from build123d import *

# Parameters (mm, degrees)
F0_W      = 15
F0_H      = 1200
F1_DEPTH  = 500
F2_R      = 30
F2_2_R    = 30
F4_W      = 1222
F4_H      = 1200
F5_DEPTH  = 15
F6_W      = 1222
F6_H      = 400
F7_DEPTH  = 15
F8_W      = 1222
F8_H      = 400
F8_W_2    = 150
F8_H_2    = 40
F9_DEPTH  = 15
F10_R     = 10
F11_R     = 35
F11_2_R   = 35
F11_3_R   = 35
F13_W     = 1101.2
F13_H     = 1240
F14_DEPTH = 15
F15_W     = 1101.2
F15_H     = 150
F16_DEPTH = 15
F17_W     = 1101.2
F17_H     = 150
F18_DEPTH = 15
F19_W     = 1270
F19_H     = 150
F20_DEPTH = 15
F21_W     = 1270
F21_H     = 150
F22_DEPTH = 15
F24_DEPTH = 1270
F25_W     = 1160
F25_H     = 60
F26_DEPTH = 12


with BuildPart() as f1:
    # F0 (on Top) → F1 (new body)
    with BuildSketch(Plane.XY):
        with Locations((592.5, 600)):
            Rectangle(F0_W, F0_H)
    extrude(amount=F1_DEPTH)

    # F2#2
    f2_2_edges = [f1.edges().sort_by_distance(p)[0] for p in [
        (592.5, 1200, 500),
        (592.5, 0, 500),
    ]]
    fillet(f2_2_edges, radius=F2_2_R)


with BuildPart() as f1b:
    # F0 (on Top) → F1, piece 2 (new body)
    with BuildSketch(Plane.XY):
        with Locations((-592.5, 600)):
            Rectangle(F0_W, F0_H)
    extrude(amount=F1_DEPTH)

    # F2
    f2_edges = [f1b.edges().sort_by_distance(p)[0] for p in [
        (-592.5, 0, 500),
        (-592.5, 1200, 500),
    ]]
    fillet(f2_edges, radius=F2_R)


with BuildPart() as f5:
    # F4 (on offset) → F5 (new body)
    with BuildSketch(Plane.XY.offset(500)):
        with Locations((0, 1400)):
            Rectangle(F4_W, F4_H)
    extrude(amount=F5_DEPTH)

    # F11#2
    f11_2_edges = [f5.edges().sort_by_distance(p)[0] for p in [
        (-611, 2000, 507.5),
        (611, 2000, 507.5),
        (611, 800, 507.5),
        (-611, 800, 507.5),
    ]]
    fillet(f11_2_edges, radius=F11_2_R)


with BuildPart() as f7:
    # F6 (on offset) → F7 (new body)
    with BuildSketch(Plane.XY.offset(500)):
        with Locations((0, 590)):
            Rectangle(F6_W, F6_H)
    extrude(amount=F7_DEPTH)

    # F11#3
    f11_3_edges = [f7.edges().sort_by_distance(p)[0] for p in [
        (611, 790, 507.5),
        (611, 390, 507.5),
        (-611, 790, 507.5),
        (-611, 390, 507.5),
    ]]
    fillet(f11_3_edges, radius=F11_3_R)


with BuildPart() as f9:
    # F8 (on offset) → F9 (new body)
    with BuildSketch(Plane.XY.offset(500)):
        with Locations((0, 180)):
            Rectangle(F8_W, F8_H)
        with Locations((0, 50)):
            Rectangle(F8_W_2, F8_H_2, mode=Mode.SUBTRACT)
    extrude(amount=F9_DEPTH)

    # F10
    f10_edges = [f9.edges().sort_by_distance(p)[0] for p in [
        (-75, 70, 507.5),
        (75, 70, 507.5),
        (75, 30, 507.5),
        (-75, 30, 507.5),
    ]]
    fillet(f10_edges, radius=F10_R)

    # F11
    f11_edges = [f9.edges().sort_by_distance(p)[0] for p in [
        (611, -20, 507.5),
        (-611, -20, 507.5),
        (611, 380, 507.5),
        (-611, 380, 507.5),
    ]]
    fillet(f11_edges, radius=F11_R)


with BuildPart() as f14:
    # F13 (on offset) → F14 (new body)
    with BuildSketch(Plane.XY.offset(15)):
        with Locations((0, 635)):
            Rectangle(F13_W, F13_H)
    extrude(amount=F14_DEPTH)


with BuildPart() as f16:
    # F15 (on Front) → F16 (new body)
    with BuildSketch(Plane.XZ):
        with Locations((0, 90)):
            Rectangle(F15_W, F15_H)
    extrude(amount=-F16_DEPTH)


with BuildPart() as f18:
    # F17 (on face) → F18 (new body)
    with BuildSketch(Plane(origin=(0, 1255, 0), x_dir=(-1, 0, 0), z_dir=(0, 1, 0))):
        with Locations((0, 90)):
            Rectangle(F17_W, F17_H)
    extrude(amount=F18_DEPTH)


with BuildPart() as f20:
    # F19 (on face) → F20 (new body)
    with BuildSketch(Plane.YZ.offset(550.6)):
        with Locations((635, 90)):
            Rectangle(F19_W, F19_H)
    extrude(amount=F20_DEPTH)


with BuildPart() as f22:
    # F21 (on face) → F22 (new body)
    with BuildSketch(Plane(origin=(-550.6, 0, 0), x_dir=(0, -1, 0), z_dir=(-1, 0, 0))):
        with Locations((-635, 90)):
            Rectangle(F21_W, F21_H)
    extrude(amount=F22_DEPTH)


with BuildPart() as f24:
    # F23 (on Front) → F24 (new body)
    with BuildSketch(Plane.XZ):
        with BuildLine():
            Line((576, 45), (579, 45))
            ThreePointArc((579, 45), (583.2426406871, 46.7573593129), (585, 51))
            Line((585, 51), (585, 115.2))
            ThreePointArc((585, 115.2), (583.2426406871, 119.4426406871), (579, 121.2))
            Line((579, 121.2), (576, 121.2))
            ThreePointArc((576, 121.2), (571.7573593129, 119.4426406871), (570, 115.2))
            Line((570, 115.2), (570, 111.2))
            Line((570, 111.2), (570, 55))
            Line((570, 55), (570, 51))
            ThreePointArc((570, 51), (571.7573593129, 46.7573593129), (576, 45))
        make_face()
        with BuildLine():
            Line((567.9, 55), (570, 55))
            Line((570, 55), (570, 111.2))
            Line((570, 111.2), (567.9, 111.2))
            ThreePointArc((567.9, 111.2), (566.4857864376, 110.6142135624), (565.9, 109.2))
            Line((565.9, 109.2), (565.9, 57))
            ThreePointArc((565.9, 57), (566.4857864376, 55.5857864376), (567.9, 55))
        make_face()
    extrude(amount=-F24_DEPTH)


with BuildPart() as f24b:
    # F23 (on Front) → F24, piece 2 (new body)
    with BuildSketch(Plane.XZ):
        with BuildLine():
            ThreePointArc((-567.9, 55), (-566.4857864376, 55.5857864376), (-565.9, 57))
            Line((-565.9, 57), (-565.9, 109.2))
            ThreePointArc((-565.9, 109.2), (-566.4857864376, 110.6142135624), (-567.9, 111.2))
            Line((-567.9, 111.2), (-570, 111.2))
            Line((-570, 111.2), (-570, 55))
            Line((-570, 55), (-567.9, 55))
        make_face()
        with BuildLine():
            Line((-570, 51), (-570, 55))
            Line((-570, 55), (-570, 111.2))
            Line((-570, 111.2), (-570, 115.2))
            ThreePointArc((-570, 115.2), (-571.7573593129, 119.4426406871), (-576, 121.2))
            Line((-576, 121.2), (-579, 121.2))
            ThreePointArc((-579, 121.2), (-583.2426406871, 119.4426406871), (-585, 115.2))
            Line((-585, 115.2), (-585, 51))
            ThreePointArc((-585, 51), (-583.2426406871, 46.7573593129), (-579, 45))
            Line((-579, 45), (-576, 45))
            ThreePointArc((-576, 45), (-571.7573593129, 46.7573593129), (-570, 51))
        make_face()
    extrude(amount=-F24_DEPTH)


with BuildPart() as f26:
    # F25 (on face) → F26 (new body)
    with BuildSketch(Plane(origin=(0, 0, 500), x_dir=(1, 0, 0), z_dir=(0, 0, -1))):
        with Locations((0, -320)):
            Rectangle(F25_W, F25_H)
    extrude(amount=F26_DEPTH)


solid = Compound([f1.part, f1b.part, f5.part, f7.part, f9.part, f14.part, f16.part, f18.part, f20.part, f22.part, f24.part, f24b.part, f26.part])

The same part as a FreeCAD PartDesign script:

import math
import FreeCAD as App
import Part
import Sketcher
Q = App.Units.Quantity


def edges_at(feature, points):
    """Names of the edges that pass closest to the given points."""
    edges = feature.Shape.Edges
    near = lambda p: min(range(len(edges)), key=lambda i: edges[i].distToShape(Part.Vertex(*p))[0])
    return sorted({f"Edge{near(p) + 1}" for p in points})


def add_polygon(sketch, points):
    """Adds a closed chain of lines whose ends are joined by coincident constraints."""
    first, n = sketch.GeometryCount, len(points)
    for a, b in zip(points, points[1:] + points[:1]):
        sketch.addGeometry(Part.LineSegment(App.Vector(*a, 0), App.Vector(*b, 0)), False)
    for i in range(n):
        sketch.addConstraint(Sketcher.Constraint("Coincident", first + i, 2, first + (i + 1) % n, 1))

doc = App.newDocument("Part")
body = doc.addObject("PartDesign::Body", "Body")

sketch1 = body.newObject("Sketcher::SketchObject", "Sketch")
sketch1.AttachmentSupport = (doc.getObject("XY_Plane"), [""])
sketch1.MapMode = "FlatFace"
add_polygon(sketch1, [(585, 1200), (585, 0), (600, 0), (600, 1200)])
sketch1.addConstraint([
    Sketcher.Constraint("Vertical", 0),
    Sketcher.Constraint("Horizontal", 1),
    Sketcher.Constraint("Vertical", 2),
    Sketcher.Constraint("Horizontal", 3),
    Sketcher.Constraint("PointOnObject", 0, 2, -1),
    Sketcher.Constraint("DistanceX", 1, 1, 1, 2, Q("15 mm")),
    Sketcher.Constraint("DistanceY", 0, 2, 0, 1, Q("1200 mm")),
    Sketcher.Constraint("DistanceX", -1, 1, 0, 2, Q("585 mm")),
])
pad1 = body.newObject("PartDesign::Pad", "Pad")
pad1.Profile = sketch1
pad1.Length = 500
doc.recompute()

fillet = body.newObject("PartDesign::Fillet", "Fillet")
fillet.Base = (pad1, edges_at(pad1, [(592.5, 1200, 500), (592.5, 0, 500)]))
fillet.Radius = 30
body2 = doc.addObject("PartDesign::Body", "Body001")

sketch2 = body2.newObject("Sketcher::SketchObject", "Sketch001")
sketch2.AttachmentSupport = (doc.getObject("XY_Plane001"), [""])
sketch2.MapMode = "FlatFace"
add_polygon(sketch2, [(-600, 1200), (-600, 0), (-585, 0), (-585, 1200)])
sketch2.addConstraint([
    Sketcher.Constraint("Vertical", 0),
    Sketcher.Constraint("Horizontal", 1),
    Sketcher.Constraint("Vertical", 2),
    Sketcher.Constraint("Horizontal", 3),
    Sketcher.Constraint("PointOnObject", 0, 2, -1),
    Sketcher.Constraint("DistanceX", 1, 1, 1, 2, Q("15 mm")),
    Sketcher.Constraint("DistanceY", 0, 2, 0, 1, Q("1200 mm")),
    Sketcher.Constraint("DistanceX", 0, 2, -1, 1, Q("600 mm")),
])
pad2 = body2.newObject("PartDesign::Pad", "Pad001")
pad2.Profile = sketch2
pad2.Length = 500
doc.recompute()

fillet2 = body2.newObject("PartDesign::Fillet", "Fillet001")
fillet2.Base = (pad2, edges_at(pad2, [(-592.5, 0, 500), (-592.5, 1200, 500)]))
fillet2.Radius = 30
body3 = doc.addObject("PartDesign::Body", "Body002")

sketch3 = body3.newObject("Sketcher::SketchObject", "Sketch002")
sketch3.AttachmentSupport = (doc.getObject("XY_Plane002"), [""])
sketch3.MapMode = "FlatFace"
sketch3.AttachmentOffset = App.Placement(App.Vector(0, 0, 500), App.Rotation())
add_polygon(sketch3, [(-611, 2000), (-611, 800), (611, 800), (611, 2000)])
sketch3.addConstraint([
    Sketcher.Constraint("Vertical", 0),
    Sketcher.Constraint("Horizontal", 1),
    Sketcher.Constraint("Vertical", 2),
    Sketcher.Constraint("Horizontal", 3),
    Sketcher.Constraint("DistanceX", 1, 1, 1, 2, Q("1222 mm")),
    Sketcher.Constraint("DistanceY", 0, 2, 0, 1, Q("1200 mm")),
    Sketcher.Constraint("DistanceX", 0, 2, -1, 1, Q("611 mm")),
    Sketcher.Constraint("DistanceY", -1, 1, 0, 2, Q("800 mm")),
])
pad3 = body3.newObject("PartDesign::Pad", "Pad002")
pad3.Profile = sketch3
pad3.Length = 15
doc.recompute()

fillet3 = body3.newObject("PartDesign::Fillet", "Fillet002")
fillet3.Base = (pad3, edges_at(pad3, [
    (-611, 2000, 507.5),
    (611, 2000, 507.5),
    (611, 800, 507.5),
    (-611, 800, 507.5),
]))
fillet3.Radius = 35
body4 = doc.addObject("PartDesign::Body", "Body003")

sketch4 = body4.newObject("Sketcher::SketchObject", "Sketch003")
sketch4.AttachmentSupport = (doc.getObject("XY_Plane003"), [""])
sketch4.MapMode = "FlatFace"
sketch4.AttachmentOffset = App.Placement(App.Vector(0, 0, 500), App.Rotation())
add_polygon(sketch4, [(-611, 790), (-611, 390), (611, 390), (611, 790)])
sketch4.addConstraint([
    Sketcher.Constraint("Vertical", 0),
    Sketcher.Constraint("Horizontal", 1),
    Sketcher.Constraint("Vertical", 2),
    Sketcher.Constraint("Horizontal", 3),
    Sketcher.Constraint("DistanceX", 1, 1, 1, 2, Q("1222 mm")),
    Sketcher.Constraint("DistanceY", 0, 2, 0, 1, Q("400 mm")),
    Sketcher.Constraint("DistanceX", 0, 2, -1, 1, Q("611 mm")),
    Sketcher.Constraint("DistanceY", -1, 1, 0, 2, Q("390 mm")),
])
pad4 = body4.newObject("PartDesign::Pad", "Pad003")
pad4.Profile = sketch4
pad4.Length = 15
doc.recompute()

fillet4 = body4.newObject("PartDesign::Fillet", "Fillet003")
fillet4.Base = (pad4, edges_at(pad4, [
    (611, 790, 507.5),
    (611, 390, 507.5),
    (-611, 790, 507.5),
    (-611, 390, 507.5),
]))
fillet4.Radius = 35
body5 = doc.addObject("PartDesign::Body", "Body004")

sketch5 = body5.newObject("Sketcher::SketchObject", "Sketch004")
sketch5.AttachmentSupport = (doc.getObject("XY_Plane004"), [""])
sketch5.MapMode = "FlatFace"
sketch5.AttachmentOffset = App.Placement(App.Vector(0, 0, 500), App.Rotation())
add_polygon(sketch5, [(-611, 380), (-611, -20), (611, -20), (611, 380)])
add_polygon(sketch5, [(75, 30), (-75, 30), (-75, 70), (75, 70)])
sketch5.addConstraint([
    Sketcher.Constraint("Vertical", 0),
    Sketcher.Constraint("Horizontal", 1),
    Sketcher.Constraint("Vertical", 2),
    Sketcher.Constraint("Horizontal", 3),
    Sketcher.Constraint("Horizontal", 4),
    Sketcher.Constraint("Vertical", 5),
    Sketcher.Constraint("Horizontal", 6),
    Sketcher.Constraint("Vertical", 7),
    Sketcher.Constraint("DistanceX", 1, 1, 1, 2, Q("1222 mm")),
    Sketcher.Constraint("DistanceX", 4, 2, 4, 1, Q("150 mm")),
    Sketcher.Constraint("DistanceY", 0, 2, 0, 1, Q("400 mm")),
    Sketcher.Constraint("DistanceY", 5, 1, 5, 2, Q("40 mm")),
    Sketcher.Constraint("DistanceX", 0, 2, -1, 1, Q("611 mm")),
    Sketcher.Constraint("DistanceY", 0, 2, -1, 1, Q("20 mm")),
    Sketcher.Constraint("DistanceX", 4, 2, -1, 1, Q("75 mm")),
    Sketcher.Constraint("DistanceY", -1, 1, 4, 2, Q("30 mm")),
])
pad5 = body5.newObject("PartDesign::Pad", "Pad004")
pad5.Profile = sketch5
pad5.Length = 15
doc.recompute()

fillet5 = body5.newObject("PartDesign::Fillet", "Fillet004")
fillet5.Base = (pad5, edges_at(pad5, [
    (-75, 70, 507.5),
    (75, 70, 507.5),
    (75, 30, 507.5),
    (-75, 30, 507.5),
]))
fillet5.Radius = 10
doc.recompute()

fillet6 = body5.newObject("PartDesign::Fillet", "Fillet005")
fillet6.Base = (fillet5, edges_at(fillet5, [
    (611, -20, 507.5),
    (-611, -20, 507.5),
    (611, 380, 507.5),
    (-611, 380, 507.5),
]))
fillet6.Radius = 35
body6 = doc.addObject("PartDesign::Body", "Body005")

sketch6 = body6.newObject("Sketcher::SketchObject", "Sketch005")
sketch6.AttachmentSupport = (doc.getObject("XY_Plane005"), [""])
sketch6.MapMode = "FlatFace"
sketch6.AttachmentOffset = App.Placement(App.Vector(0, 0, 15), App.Rotation())
add_polygon(sketch6, [(-551, 1255), (-551, 15), (551, 15), (551, 1255)])
sketch6.addConstraint([
    Sketcher.Constraint("Vertical", 0),
    Sketcher.Constraint("Horizontal", 1),
    Sketcher.Constraint("Vertical", 2),
    Sketcher.Constraint("Horizontal", 3),
    Sketcher.Constraint("DistanceY", 0, 2, 0, 1, Q("1240 mm")),
    Sketcher.Constraint("DistanceX", 1, 1, 1, 2, Q("1101.2 mm")),
    Sketcher.Constraint("DistanceY", -1, 1, 0, 2, Q("15 mm")),
    Sketcher.Constraint("DistanceX", 0, 2, -1, 1, Q("550.6 mm")),
])
pad6 = body6.newObject("PartDesign::Pad", "Pad005")
pad6.Profile = sketch6
pad6.Length = 15
body7 = doc.addObject("PartDesign::Body", "Body006")

sketch7 = body7.newObject("Sketcher::SketchObject", "Sketch006")
sketch7.AttachmentSupport = (doc.getObject("XZ_Plane006"), [""])
sketch7.MapMode = "FlatFace"
add_polygon(sketch7, [(-551, 165), (-551, 15), (551, 15), (551, 165)])
sketch7.addConstraint([
    Sketcher.Constraint("Vertical", 0),
    Sketcher.Constraint("Horizontal", 1),
    Sketcher.Constraint("Vertical", 2),
    Sketcher.Constraint("Horizontal", 3),
    Sketcher.Constraint("DistanceY", 0, 2, 0, 1, Q("150 mm")),
    Sketcher.Constraint("DistanceX", 1, 1, 1, 2, Q("1101.2 mm")),
    Sketcher.Constraint("DistanceY", -1, 1, 0, 2, Q("15 mm")),
    Sketcher.Constraint("DistanceX", 0, 2, -1, 1, Q("550.6 mm")),
])
pad7 = body7.newObject("PartDesign::Pad", "Pad006")
pad7.Profile = sketch7
pad7.Length = 15
pad7.Reversed = True
body8 = doc.addObject("PartDesign::Body", "Body007")

sketch8 = body8.newObject("Sketcher::SketchObject", "Sketch007")
sketch8.AttachmentSupport = (doc.getObject("XZ_Plane007"), [""])
sketch8.MapMode = "FlatFace"
sketch8.AttachmentOffset = App.Placement(App.Vector(0, 0, -1255), App.Rotation())
add_polygon(sketch8, [(551, 165), (551, 15), (-551, 15), (-551, 165)])
sketch8.addConstraint([
    Sketcher.Constraint("Vertical", 0),
    Sketcher.Constraint("Horizontal", 1),
    Sketcher.Constraint("Vertical", 2),
    Sketcher.Constraint("Horizontal", 3),
    Sketcher.Constraint("DistanceY", 0, 2, 0, 1, Q("150 mm")),
    Sketcher.Constraint("DistanceX", 1, 2, 1, 1, Q("1101.2 mm")),
    Sketcher.Constraint("DistanceY", -1, 1, 0, 2, Q("15 mm")),
    Sketcher.Constraint("DistanceX", -1, 1, 0, 2, Q("550.6 mm")),
])
pad8 = body8.newObject("PartDesign::Pad", "Pad007")
pad8.Profile = sketch8
pad8.Length = 15
pad8.Reversed = True
body9 = doc.addObject("PartDesign::Body", "Body008")

sketch9 = body9.newObject("Sketcher::SketchObject", "Sketch008")
sketch9.AttachmentSupport = (doc.getObject("YZ_Plane008"), [""])
sketch9.MapMode = "FlatFace"
sketch9.AttachmentOffset = App.Placement(App.Vector(0, 0, 550.6), App.Rotation())
add_polygon(sketch9, [(0, 165), (0, 15), (1270, 15), (1270, 165)])
sketch9.addConstraint([
    Sketcher.Constraint("Vertical", 0),
    Sketcher.Constraint("Horizontal", 1),
    Sketcher.Constraint("Vertical", 2),
    Sketcher.Constraint("Horizontal", 3),
    Sketcher.Constraint("PointOnObject", 0, 2, -2),
    Sketcher.Constraint("DistanceX", 1, 1, 1, 2, Q("1270 mm")),
    Sketcher.Constraint("DistanceY", 0, 2, 0, 1, Q("150 mm")),
    Sketcher.Constraint("DistanceY", -1, 1, 0, 2, Q("15 mm")),
])
pad9 = body9.newObject("PartDesign::Pad", "Pad008")
pad9.Profile = sketch9
pad9.Length = 15
body10 = doc.addObject("PartDesign::Body", "Body009")

sketch10 = body10.newObject("Sketcher::SketchObject", "Sketch009")
sketch10.AttachmentSupport = (doc.getObject("YZ_Plane009"), [""])
sketch10.MapMode = "FlatFace"
sketch10.AttachmentOffset = App.Placement(App.Vector(0, 0, -550.6), App.Rotation())
add_polygon(sketch10, [(1270, 165), (1270, 15), (0, 15), (0, 165)])
sketch10.addConstraint([
    Sketcher.Constraint("Vertical", 0),
    Sketcher.Constraint("Horizontal", 1),
    Sketcher.Constraint("Vertical", 2),
    Sketcher.Constraint("Horizontal", 3),
    Sketcher.Constraint("PointOnObject", 1, 2, -2),
    Sketcher.Constraint("DistanceX", 1, 2, 1, 1, Q("1270 mm")),
    Sketcher.Constraint("DistanceY", 0, 2, 0, 1, Q("150 mm")),
    Sketcher.Constraint("DistanceY", -1, 1, 0, 2, Q("15 mm")),
])
pad10 = body10.newObject("PartDesign::Pad", "Pad009")
pad10.Profile = sketch10
pad10.Length = 15
pad10.Reversed = True
body11 = doc.addObject("PartDesign::Body", "Body010")

sketch11 = body11.newObject("Sketcher::SketchObject", "Sketch010")
sketch11.AttachmentSupport = (doc.getObject("XZ_Plane010"), [""])
sketch11.MapMode = "FlatFace"
sketch11.addGeometry([
    Part.LineSegment(App.Vector(576, 45, 0), App.Vector(579, 45, 0)),
    Part.ArcOfCircle(Part.Circle(App.Vector(579, 51, 0), App.Vector(0, 0, 1), 6), math.radians(-90), math.radians(0)),
    Part.LineSegment(App.Vector(585, 51, 0), App.Vector(585, 115.2, 0)),
    Part.ArcOfCircle(Part.Circle(App.Vector(579, 115.2, 0), App.Vector(0, 0, 1), 6), math.radians(0), math.radians(90)),
    Part.LineSegment(App.Vector(579, 121.2, 0), App.Vector(576, 121.2, 0)),
    Part.ArcOfCircle(Part.Circle(App.Vector(576, 115.2, 0), App.Vector(0, 0, 1), 6), math.radians(90), math.radians(180)),
    Part.LineSegment(App.Vector(570, 115.2, 0), App.Vector(570, 111.2, 0)),
    Part.LineSegment(App.Vector(570, 111.2, 0), App.Vector(567.9, 111.2, 0)),
    Part.ArcOfCircle(Part.Circle(App.Vector(567.9, 109.2, 0), App.Vector(0, 0, 1), 2), math.radians(90), math.radians(180)),
    Part.LineSegment(App.Vector(565.9, 109.2, 0), App.Vector(565.9, 57, 0)),
    Part.ArcOfCircle(Part.Circle(App.Vector(567.9, 57, 0), App.Vector(0, 0, 1), 2), math.radians(180), math.radians(270)),
    Part.LineSegment(App.Vector(567.9, 55, 0), App.Vector(570, 55, 0)),
    Part.LineSegment(App.Vector(570, 55, 0), App.Vector(570, 51, 0)),
    Part.ArcOfCircle(Part.Circle(App.Vector(576, 51, 0), App.Vector(0, 0, 1), 6), math.radians(180), math.radians(270)),
], False)
sketch11.addConstraint([
    Sketcher.Constraint("Tangent", 0, 2, 1, 1),
    Sketcher.Constraint("Tangent", 1, 2, 2, 1),
    Sketcher.Constraint("Tangent", 2, 2, 3, 1),
    Sketcher.Constraint("Tangent", 3, 2, 4, 1),
    Sketcher.Constraint("Tangent", 4, 2, 5, 1),
    Sketcher.Constraint("Tangent", 5, 2, 6, 1),
    Sketcher.Constraint("Coincident", 6, 2, 7, 1),
    Sketcher.Constraint("Tangent", 7, 2, 8, 1),
    Sketcher.Constraint("Tangent", 8, 2, 9, 1),
    Sketcher.Constraint("Tangent", 9, 2, 10, 1),
    Sketcher.Constraint("Tangent", 10, 2, 11, 1),
    Sketcher.Constraint("Coincident", 11, 2, 12, 1),
    Sketcher.Constraint("Tangent", 12, 2, 13, 1),
    Sketcher.Constraint("Tangent", 13, 2, 0, 1),
    Sketcher.Constraint("Horizontal", 0),
    Sketcher.Constraint("Vertical", 2),
    Sketcher.Constraint("Horizontal", 4),
    Sketcher.Constraint("Vertical", 6),
    Sketcher.Constraint("Horizontal", 7),
    Sketcher.Constraint("Vertical", 9),
    Sketcher.Constraint("Horizontal", 11),
    Sketcher.Constraint("Vertical", 12),
    Sketcher.Constraint("Equal", 1, 3),
    Sketcher.Constraint("Equal", 3, 5),
    Sketcher.Constraint("Equal", 8, 10),
    Sketcher.Constraint("Equal", 5, 13),
    Sketcher.Constraint("Vertical", 5, 3, 13, 3),
    Sketcher.Constraint("Equal", 6, 12),
    Sketcher.Constraint("Radius", 1, Q("6 mm")),
    Sketcher.Constraint("Radius", 8, Q("2 mm")),
    Sketcher.Constraint("DistanceX", 0, 1, 0, 2, Q("3 mm")),
    Sketcher.Constraint("DistanceY", 6, 2, 6, 1, Q("4 mm")),
    Sketcher.Constraint("DistanceX", 7, 2, 7, 1, Q("2.1 mm")),
    Sketcher.Constraint("DistanceY", 2, 1, 2, 2, Q("64.2 mm")),
    Sketcher.Constraint("DistanceX", -1, 1, 1, 3, Q("579 mm")),
    Sketcher.Constraint("DistanceY", -1, 1, 1, 3, Q("51 mm")),
])
pad11 = body11.newObject("PartDesign::Pad", "Pad010")
pad11.Profile = sketch11
pad11.Length = 1270
pad11.Reversed = True
body12 = doc.addObject("PartDesign::Body", "Body011")

sketch12 = body12.newObject("Sketcher::SketchObject", "Sketch011")
sketch12.AttachmentSupport = (doc.getObject("XZ_Plane011"), [""])
sketch12.MapMode = "FlatFace"
sketch12.addGeometry([
    Part.ArcOfCircle(Part.Circle(App.Vector(-567.9, 57, 0), App.Vector(0, 0, 1), 2), math.radians(-90), math.radians(0)),
    Part.LineSegment(App.Vector(-565.9, 57, 0), App.Vector(-565.9, 109.2, 0)),
    Part.ArcOfCircle(Part.Circle(App.Vector(-567.9, 109.2, 0), App.Vector(0, 0, 1), 2), math.radians(0), math.radians(90)),
    Part.LineSegment(App.Vector(-567.9, 111.2, 0), App.Vector(-570, 111.2, 0)),
    Part.LineSegment(App.Vector(-570, 111.2, 0), App.Vector(-570, 115.2, 0)),
    Part.ArcOfCircle(Part.Circle(App.Vector(-576, 115.2, 0), App.Vector(0, 0, 1), 6), math.radians(0), math.radians(90)),
    Part.LineSegment(App.Vector(-576, 121.2, 0), App.Vector(-579, 121.2, 0)),
    Part.ArcOfCircle(Part.Circle(App.Vector(-579, 115.2, 0), App.Vector(0, 0, 1), 6), math.radians(90), math.radians(180)),
    Part.LineSegment(App.Vector(-585, 115.2, 0), App.Vector(-585, 51, 0)),
    Part.ArcOfCircle(Part.Circle(App.Vector(-579, 51, 0), App.Vector(0, 0, 1), 6), math.radians(180), math.radians(270)),
    Part.LineSegment(App.Vector(-579, 45, 0), App.Vector(-576, 45, 0)),
    Part.ArcOfCircle(Part.Circle(App.Vector(-576, 51, 0), App.Vector(0, 0, 1), 6), math.radians(-90), math.radians(0)),
    Part.LineSegment(App.Vector(-570, 51, 0), App.Vector(-570, 55, 0)),
    Part.LineSegment(App.Vector(-570, 55, 0), App.Vector(-567.9, 55, 0)),
], False)
sketch12.addConstraint([
    Sketcher.Constraint("Tangent", 0, 2, 1, 1),
    Sketcher.Constraint("Tangent", 1, 2, 2, 1),
    Sketcher.Constraint("Tangent", 2, 2, 3, 1),
    Sketcher.Constraint("Coincident", 3, 2, 4, 1),
    Sketcher.Constraint("Tangent", 4, 2, 5, 1),
    Sketcher.Constraint("Tangent", 5, 2, 6, 1),
    Sketcher.Constraint("Tangent", 6, 2, 7, 1),
    Sketcher.Constraint("Tangent", 7, 2, 8, 1),
    Sketcher.Constraint("Tangent", 8, 2, 9, 1),
    Sketcher.Constraint("Tangent", 9, 2, 10, 1),
    Sketcher.Constraint("Tangent", 10, 2, 11, 1),
    Sketcher.Constraint("Tangent", 11, 2, 12, 1),
    Sketcher.Constraint("Coincident", 12, 2, 13, 1),
    Sketcher.Constraint("Tangent", 13, 2, 0, 1),
    Sketcher.Constraint("Vertical", 1),
    Sketcher.Constraint("Horizontal", 3),
    Sketcher.Constraint("Vertical", 4),
    Sketcher.Constraint("Horizontal", 6),
    Sketcher.Constraint("Vertical", 8),
    Sketcher.Constraint("Horizontal", 10),
    Sketcher.Constraint("Vertical", 12),
    Sketcher.Constraint("Horizontal", 13),
    Sketcher.Constraint("Equal", 0, 2),
    Sketcher.Constraint("Equal", 5, 7),
    Sketcher.Constraint("Equal", 7, 9),
    Sketcher.Constraint("Equal", 9, 11),
    Sketcher.Constraint("Vertical", 5, 3, 11, 3),
    Sketcher.Constraint("Equal", 4, 12),
    Sketcher.Constraint("Radius", 0, Q("2 mm")),
    Sketcher.Constraint("Radius", 5, Q("6 mm")),
    Sketcher.Constraint("DistanceX", 6, 2, 6, 1, Q("3 mm")),
    Sketcher.Constraint("DistanceY", 4, 1, 4, 2, Q("4 mm")),
    Sketcher.Constraint("DistanceX", 3, 2, 3, 1, Q("2.1 mm")),
    Sketcher.Constraint("DistanceY", 1, 1, 1, 2, Q("52.2 mm")),
    Sketcher.Constraint("DistanceY", -1, 1, 0, 3, Q("57 mm")),
    Sketcher.Constraint("DistanceX", 5, 3, -1, 1, Q("576 mm")),
])
pad12 = body12.newObject("PartDesign::Pad", "Pad011")
pad12.Profile = sketch12
pad12.Length = 1270
pad12.Reversed = True
body13 = doc.addObject("PartDesign::Body", "Body012")

sketch13 = body13.newObject("Sketcher::SketchObject", "Sketch012")
sketch13.AttachmentSupport = (doc.getObject("XY_Plane012"), [""])
sketch13.MapMode = "FlatFace"
sketch13.AttachmentOffset = App.Placement(App.Vector(0, 0, 500), App.Rotation())
add_polygon(sketch13, [(-580, 290), (-580, 350), (580, 350), (580, 290)])
sketch13.addConstraint([
    Sketcher.Constraint("Vertical", 0),
    Sketcher.Constraint("Horizontal", 1),
    Sketcher.Constraint("Vertical", 2),
    Sketcher.Constraint("Horizontal", 3),
    Sketcher.Constraint("DistanceX", 1, 1, 1, 2, Q("1160 mm")),
    Sketcher.Constraint("DistanceY", 0, 1, 0, 2, Q("60 mm")),
    Sketcher.Constraint("DistanceX", 0, 2, -1, 1, Q("580 mm")),
    Sketcher.Constraint("DistanceY", -1, 1, 0, 2, Q("350 mm")),
])
pad13 = body13.newObject("PartDesign::Pad", "Pad012")
pad13.Profile = sketch13
pad13.Length = 12
pad13.Reversed = True

doc.recompute()
